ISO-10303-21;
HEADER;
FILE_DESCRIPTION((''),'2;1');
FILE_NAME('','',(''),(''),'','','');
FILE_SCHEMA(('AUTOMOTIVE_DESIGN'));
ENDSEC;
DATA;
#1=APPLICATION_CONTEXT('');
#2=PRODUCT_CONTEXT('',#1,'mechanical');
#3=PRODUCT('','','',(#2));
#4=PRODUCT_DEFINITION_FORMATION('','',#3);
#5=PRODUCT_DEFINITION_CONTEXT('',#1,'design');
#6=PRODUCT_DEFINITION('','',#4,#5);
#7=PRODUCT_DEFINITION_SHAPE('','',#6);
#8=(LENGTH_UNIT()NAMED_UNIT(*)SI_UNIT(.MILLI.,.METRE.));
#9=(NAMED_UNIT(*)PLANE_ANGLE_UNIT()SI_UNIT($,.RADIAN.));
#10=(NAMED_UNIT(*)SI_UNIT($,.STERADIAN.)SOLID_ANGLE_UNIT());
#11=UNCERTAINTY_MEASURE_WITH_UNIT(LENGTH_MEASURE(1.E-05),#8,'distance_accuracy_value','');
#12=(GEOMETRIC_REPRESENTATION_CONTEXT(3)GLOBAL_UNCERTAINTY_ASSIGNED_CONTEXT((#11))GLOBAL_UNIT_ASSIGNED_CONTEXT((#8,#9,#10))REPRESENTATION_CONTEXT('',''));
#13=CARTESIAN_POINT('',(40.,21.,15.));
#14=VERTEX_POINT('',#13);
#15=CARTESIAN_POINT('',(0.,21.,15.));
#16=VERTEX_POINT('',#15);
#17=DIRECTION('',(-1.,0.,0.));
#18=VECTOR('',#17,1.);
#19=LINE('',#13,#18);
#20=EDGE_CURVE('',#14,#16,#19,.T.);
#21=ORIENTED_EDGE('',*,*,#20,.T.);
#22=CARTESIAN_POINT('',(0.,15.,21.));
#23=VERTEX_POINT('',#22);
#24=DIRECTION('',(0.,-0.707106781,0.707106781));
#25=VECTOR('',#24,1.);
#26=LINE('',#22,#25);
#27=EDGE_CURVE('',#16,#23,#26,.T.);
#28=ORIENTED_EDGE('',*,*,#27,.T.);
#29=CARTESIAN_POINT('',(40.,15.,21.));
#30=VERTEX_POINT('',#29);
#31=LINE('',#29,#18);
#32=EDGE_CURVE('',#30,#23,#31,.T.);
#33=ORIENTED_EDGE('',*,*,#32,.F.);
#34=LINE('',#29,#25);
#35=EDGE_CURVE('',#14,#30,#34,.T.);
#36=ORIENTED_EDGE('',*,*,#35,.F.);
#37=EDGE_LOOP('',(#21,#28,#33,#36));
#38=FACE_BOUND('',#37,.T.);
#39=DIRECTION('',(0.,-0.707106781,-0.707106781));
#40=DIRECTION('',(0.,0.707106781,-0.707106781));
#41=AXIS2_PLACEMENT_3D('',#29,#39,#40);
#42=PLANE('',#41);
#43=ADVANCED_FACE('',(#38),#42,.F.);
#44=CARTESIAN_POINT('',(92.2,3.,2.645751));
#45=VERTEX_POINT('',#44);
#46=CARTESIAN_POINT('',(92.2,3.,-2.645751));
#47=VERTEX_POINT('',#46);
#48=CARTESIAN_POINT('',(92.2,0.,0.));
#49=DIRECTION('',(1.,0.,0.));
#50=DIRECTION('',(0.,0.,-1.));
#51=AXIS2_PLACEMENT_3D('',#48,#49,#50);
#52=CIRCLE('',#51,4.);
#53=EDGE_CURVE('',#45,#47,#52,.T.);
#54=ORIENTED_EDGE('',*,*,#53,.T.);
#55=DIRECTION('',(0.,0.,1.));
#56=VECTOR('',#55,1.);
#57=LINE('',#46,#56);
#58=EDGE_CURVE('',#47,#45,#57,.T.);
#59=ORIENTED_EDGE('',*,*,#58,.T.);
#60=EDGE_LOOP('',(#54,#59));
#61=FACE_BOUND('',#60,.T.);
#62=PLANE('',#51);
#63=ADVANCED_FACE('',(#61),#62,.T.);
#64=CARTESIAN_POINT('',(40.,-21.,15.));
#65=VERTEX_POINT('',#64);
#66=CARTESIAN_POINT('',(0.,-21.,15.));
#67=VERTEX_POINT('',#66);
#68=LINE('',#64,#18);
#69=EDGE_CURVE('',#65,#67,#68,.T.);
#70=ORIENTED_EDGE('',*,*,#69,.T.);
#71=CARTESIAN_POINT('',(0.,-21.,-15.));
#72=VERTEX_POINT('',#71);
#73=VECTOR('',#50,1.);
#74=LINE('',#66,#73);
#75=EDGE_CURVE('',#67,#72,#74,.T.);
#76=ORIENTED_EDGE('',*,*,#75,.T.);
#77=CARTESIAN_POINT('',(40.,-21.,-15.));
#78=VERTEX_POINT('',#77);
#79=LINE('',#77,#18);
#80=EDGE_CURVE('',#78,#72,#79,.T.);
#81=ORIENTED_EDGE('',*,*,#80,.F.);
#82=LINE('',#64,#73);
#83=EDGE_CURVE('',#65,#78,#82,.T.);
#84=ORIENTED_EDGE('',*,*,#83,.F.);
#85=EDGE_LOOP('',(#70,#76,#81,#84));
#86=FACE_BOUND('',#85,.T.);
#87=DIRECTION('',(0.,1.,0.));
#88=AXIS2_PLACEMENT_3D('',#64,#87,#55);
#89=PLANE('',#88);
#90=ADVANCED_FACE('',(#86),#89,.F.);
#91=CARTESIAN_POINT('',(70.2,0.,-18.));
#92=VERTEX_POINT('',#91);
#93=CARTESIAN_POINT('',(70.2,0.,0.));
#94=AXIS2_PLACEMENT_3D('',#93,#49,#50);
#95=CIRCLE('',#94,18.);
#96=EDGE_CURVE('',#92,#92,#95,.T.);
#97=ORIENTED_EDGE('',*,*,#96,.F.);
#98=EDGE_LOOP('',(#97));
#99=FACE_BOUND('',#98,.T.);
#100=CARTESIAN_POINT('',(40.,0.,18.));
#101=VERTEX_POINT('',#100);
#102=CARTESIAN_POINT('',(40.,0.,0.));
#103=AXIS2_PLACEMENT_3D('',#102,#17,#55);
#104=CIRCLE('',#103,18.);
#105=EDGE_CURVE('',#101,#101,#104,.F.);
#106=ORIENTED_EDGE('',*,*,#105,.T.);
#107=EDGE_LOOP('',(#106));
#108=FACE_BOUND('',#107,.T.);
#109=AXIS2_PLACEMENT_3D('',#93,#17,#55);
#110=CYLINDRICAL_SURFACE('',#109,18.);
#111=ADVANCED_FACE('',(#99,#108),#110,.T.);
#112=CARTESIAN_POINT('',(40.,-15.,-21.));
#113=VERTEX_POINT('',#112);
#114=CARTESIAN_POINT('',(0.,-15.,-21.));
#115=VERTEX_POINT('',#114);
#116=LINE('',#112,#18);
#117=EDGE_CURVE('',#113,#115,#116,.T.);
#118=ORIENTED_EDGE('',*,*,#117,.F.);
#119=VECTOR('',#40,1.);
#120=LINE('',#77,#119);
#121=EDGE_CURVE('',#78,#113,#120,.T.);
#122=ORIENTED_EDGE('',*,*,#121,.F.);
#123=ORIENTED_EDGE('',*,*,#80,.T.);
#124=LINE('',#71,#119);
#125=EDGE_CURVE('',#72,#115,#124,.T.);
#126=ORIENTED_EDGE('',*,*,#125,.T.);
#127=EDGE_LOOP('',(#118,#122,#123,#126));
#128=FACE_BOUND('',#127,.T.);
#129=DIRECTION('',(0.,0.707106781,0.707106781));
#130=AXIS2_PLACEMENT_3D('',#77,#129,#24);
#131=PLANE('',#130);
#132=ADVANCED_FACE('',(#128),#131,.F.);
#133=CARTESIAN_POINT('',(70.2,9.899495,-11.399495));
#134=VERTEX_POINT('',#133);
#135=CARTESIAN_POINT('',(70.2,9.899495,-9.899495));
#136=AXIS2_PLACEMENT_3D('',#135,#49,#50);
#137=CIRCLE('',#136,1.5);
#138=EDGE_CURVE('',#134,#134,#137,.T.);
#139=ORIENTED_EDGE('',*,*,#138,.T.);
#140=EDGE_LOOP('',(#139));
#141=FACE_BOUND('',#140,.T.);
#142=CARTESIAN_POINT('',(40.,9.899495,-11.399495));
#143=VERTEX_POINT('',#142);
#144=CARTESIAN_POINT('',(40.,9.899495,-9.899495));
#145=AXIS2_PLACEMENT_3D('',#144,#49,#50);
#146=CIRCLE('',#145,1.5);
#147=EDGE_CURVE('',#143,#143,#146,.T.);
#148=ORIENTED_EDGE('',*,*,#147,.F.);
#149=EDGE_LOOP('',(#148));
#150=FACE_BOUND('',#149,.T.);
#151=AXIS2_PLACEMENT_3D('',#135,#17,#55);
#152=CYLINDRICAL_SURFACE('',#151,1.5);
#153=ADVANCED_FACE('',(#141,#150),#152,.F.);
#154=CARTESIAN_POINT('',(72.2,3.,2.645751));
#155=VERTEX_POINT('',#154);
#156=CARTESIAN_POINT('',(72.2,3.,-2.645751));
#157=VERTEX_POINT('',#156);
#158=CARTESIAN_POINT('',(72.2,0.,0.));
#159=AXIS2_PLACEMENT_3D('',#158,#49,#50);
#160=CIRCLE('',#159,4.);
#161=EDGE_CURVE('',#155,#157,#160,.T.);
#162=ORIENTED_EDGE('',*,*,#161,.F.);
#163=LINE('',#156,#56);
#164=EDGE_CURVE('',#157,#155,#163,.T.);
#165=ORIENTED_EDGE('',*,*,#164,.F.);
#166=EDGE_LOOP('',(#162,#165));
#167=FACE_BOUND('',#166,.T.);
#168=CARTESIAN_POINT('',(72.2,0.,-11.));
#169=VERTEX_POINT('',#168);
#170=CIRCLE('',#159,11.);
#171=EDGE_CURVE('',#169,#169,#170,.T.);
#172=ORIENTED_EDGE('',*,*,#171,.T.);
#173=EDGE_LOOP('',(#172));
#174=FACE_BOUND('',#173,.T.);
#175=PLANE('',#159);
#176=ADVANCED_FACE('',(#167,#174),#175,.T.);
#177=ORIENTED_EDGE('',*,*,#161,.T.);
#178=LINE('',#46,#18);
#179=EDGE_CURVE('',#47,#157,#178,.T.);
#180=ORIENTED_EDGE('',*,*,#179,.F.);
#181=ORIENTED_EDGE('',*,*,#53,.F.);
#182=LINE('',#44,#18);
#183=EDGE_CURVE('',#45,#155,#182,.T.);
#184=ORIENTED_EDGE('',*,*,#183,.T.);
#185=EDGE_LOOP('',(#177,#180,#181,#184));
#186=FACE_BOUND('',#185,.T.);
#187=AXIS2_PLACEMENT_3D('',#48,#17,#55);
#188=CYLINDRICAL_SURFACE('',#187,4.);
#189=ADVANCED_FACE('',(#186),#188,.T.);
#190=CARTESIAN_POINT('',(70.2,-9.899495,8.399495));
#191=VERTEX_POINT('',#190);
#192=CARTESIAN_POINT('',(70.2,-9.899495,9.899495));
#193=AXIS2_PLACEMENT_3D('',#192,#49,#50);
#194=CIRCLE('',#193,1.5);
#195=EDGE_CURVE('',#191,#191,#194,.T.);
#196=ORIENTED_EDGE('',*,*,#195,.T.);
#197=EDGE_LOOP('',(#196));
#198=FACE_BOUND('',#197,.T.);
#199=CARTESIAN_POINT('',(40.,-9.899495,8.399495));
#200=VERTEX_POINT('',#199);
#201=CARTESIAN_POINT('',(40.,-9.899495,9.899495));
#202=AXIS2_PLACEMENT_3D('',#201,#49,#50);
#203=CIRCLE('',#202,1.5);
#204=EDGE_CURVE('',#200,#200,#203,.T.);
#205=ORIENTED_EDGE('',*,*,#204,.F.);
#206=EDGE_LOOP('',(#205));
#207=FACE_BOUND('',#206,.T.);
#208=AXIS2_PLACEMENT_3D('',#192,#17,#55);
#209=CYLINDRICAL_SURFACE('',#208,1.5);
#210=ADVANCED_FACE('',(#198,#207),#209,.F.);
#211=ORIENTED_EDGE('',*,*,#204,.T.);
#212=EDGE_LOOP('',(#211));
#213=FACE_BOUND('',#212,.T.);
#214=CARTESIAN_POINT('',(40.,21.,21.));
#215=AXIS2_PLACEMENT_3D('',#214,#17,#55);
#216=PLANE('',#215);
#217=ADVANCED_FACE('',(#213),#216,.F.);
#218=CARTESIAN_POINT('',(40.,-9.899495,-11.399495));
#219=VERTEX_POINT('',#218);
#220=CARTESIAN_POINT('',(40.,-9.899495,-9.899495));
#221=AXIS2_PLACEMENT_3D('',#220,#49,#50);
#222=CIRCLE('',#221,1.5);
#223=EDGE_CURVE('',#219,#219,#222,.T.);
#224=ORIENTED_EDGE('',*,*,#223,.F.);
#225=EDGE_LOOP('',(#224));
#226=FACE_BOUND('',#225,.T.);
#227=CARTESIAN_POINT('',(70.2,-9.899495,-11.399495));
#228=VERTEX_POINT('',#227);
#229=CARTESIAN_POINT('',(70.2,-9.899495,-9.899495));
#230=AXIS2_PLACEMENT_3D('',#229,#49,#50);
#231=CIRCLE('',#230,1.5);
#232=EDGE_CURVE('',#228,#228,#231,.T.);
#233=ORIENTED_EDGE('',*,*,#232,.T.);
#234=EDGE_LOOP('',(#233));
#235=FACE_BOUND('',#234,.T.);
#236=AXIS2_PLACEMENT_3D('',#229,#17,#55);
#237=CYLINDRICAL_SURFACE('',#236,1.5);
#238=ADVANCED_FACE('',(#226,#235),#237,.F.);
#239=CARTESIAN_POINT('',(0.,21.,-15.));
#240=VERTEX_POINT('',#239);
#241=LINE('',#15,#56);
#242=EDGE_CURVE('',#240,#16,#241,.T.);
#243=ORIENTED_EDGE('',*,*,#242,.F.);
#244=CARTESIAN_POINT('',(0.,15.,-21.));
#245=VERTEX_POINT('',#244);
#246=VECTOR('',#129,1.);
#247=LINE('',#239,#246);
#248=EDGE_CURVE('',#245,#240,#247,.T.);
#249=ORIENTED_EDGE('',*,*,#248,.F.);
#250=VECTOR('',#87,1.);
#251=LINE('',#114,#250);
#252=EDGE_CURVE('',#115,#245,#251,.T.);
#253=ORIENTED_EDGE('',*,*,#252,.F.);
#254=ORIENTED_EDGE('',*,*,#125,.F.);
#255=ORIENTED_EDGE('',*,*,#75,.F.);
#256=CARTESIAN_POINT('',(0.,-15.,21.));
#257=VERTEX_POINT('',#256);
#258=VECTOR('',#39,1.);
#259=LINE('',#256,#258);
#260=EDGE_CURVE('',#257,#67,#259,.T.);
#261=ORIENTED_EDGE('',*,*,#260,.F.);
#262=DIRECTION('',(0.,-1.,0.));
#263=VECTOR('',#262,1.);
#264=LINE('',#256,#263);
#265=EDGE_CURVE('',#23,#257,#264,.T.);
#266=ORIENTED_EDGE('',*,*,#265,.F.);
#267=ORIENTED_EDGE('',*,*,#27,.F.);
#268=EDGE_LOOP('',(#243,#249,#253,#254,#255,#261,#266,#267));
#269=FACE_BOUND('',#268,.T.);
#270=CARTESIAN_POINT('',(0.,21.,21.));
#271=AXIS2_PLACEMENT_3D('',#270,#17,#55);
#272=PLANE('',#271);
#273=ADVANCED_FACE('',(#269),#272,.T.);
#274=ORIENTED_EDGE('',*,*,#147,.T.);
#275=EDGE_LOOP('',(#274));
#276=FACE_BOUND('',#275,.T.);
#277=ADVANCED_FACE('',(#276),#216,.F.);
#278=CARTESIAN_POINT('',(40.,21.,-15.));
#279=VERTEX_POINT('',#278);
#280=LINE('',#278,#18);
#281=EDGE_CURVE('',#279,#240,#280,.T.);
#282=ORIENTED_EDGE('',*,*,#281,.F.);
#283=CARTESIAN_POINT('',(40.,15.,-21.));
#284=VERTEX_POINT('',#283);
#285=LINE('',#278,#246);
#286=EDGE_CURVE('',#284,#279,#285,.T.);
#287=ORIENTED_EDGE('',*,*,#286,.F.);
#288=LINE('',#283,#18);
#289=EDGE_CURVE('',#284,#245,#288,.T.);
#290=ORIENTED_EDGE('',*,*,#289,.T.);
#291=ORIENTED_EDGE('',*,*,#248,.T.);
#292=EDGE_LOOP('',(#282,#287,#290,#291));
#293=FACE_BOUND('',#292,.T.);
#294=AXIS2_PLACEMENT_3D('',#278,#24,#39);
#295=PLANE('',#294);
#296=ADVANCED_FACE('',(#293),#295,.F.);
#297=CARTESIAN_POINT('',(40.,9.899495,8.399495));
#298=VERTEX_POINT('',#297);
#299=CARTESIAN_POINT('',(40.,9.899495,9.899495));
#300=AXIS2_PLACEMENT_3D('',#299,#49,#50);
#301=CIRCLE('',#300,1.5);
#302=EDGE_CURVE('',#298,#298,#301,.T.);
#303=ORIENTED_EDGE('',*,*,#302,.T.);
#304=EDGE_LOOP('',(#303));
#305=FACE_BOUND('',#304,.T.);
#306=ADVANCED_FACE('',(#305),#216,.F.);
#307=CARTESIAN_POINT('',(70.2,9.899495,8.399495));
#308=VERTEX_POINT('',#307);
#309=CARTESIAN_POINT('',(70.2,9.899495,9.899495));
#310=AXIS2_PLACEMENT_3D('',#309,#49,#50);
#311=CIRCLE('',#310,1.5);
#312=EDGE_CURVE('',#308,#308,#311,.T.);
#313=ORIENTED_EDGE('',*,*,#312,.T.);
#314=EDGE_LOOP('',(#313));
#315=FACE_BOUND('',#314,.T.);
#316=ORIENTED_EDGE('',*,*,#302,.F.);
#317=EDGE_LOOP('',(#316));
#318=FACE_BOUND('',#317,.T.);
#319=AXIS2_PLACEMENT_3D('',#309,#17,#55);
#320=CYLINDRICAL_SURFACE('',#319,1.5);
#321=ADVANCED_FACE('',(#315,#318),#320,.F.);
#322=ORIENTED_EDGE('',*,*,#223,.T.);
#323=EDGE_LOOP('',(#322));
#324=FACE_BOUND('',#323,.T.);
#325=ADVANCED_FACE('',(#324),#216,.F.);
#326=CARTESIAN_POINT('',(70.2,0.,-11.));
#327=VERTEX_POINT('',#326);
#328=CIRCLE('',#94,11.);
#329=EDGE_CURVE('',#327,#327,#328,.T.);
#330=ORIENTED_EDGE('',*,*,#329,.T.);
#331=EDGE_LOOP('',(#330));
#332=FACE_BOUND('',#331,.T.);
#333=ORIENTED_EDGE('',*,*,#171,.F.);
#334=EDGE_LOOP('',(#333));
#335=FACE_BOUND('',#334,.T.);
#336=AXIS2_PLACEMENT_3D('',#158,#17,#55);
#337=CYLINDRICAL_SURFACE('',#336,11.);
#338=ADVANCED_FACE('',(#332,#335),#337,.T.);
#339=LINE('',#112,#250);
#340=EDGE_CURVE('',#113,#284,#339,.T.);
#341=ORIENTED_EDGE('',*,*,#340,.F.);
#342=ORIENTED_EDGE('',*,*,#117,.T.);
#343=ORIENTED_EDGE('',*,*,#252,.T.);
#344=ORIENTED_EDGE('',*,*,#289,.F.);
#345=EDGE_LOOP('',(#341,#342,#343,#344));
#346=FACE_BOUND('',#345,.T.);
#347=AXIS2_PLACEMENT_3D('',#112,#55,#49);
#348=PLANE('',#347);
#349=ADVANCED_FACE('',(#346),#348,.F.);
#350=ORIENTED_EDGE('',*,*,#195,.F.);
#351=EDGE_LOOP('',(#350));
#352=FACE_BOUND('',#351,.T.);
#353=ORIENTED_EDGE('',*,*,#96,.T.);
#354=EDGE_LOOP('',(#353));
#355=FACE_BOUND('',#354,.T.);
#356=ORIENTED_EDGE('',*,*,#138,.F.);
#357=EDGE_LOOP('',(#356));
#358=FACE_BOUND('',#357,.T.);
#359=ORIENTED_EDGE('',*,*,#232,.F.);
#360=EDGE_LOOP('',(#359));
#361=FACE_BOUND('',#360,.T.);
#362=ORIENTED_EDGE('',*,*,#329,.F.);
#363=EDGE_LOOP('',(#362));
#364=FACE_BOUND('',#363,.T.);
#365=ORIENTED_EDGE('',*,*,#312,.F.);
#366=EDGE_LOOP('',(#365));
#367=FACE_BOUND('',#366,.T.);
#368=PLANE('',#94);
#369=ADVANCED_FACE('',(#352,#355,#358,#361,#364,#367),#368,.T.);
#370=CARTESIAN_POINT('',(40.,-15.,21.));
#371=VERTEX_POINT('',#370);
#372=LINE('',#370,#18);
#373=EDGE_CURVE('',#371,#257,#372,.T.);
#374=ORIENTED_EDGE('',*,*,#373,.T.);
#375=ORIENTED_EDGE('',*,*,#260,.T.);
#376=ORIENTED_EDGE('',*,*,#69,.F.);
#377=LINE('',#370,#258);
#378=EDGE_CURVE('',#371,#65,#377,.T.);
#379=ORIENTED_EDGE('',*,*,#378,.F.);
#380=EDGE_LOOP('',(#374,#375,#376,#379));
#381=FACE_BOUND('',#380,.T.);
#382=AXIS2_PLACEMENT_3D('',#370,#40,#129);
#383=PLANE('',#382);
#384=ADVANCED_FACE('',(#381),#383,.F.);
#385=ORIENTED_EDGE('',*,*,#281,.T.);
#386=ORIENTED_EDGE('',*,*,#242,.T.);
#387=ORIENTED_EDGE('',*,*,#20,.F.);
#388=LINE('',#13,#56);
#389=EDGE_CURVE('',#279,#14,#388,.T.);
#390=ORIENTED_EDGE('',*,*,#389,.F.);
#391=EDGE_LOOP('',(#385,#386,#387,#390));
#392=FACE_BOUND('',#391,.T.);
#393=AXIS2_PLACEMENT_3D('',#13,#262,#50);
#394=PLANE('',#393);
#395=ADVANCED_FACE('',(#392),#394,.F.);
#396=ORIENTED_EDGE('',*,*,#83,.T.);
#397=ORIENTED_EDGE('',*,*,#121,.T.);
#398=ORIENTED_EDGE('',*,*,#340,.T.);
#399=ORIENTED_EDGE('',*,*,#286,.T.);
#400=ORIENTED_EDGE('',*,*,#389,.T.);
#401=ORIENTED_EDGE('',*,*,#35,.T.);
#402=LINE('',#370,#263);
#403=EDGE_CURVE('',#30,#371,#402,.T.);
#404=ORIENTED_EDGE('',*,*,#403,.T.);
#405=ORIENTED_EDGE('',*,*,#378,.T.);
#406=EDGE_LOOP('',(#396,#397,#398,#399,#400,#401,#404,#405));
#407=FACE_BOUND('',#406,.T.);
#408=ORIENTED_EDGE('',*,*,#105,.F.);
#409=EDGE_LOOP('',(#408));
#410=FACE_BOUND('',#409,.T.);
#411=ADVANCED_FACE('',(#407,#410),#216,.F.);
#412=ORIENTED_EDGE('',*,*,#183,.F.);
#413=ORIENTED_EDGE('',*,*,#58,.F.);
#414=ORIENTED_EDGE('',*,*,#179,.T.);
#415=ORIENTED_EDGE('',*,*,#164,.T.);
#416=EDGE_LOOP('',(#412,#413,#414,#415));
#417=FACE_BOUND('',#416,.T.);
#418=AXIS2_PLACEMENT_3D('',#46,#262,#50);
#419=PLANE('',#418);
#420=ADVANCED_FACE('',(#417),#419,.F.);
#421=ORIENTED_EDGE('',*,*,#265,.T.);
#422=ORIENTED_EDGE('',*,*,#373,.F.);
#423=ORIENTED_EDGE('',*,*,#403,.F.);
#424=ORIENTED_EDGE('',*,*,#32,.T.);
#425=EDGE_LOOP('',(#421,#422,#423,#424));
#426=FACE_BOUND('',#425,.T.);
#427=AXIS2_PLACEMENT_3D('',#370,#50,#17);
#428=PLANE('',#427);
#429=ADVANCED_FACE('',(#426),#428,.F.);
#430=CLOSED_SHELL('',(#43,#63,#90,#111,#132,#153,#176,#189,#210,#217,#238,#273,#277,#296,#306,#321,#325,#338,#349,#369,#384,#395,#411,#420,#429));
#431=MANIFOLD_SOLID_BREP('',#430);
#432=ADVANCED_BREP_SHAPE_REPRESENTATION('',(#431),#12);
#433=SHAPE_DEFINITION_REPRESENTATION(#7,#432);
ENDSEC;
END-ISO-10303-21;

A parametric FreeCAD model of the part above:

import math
import FreeCAD as App
import Part
import Sketcher

doc = App.newDocument("Part")
body = doc.addObject("PartDesign::Body", "Body")

# Sketch on YZ plane
sketch1 = body.newObject("Sketcher::SketchObject", "Sketch")
sketch1.AttachmentSupport = (doc.getObject("YZ_Plane"), [""])
sketch1.MapMode = "FlatFace"
sketch1.addGeometry([
    Part.LineSegment(App.Vector(21, 15, 0), App.Vector(15, 21, 0)),  # 0
    Part.LineSegment(App.Vector(15, 21, 0), App.Vector(-15, 21, 0)),  # 1
    Part.LineSegment(App.Vector(-15, 21, 0), App.Vector(-21, 15, 0)),  # 2
    Part.LineSegment(App.Vector(-21, 15, 0), App.Vector(-21, -15, 0)),  # 3
    Part.LineSegment(App.Vector(-21, -15, 0), App.Vector(-15, -21, 0)),  # 4
    Part.LineSegment(App.Vector(-15, -21, 0), App.Vector(15, -21, 0)),  # 5
    Part.LineSegment(App.Vector(15, -21, 0), App.Vector(21, -15, 0)),  # 6
    Part.LineSegment(App.Vector(21, -15, 0), App.Vector(21, 15, 0)),  # 7
], False)
sketch1.addConstraint([
    Sketcher.Constraint("Coincident", 0, 2, 1, 1),
    Sketcher.Constraint("Coincident", 1, 2, 2, 1),
    Sketcher.Constraint("Coincident", 2, 2, 3, 1),
    Sketcher.Constraint("Coincident", 3, 2, 4, 1),
    Sketcher.Constraint("Coincident", 4, 2, 5, 1),
    Sketcher.Constraint("Coincident", 5, 2, 6, 1),
    Sketcher.Constraint("Coincident", 6, 2, 7, 1),
    Sketcher.Constraint("Coincident", 7, 2, 0, 1),
    Sketcher.Constraint("Horizontal", 1),
    Sketcher.Constraint("Vertical", 3),
    Sketcher.Constraint("Horizontal", 5),
    Sketcher.Constraint("Vertical", 7),
    Sketcher.Constraint("Symmetric", 0, 2, 4, 2, -1, 1),
    Sketcher.Constraint("Symmetric", 2, 2, 6, 2, -1, 1),
    Sketcher.Constraint("Perpendicular", 0, 2),
    Sketcher.Constraint("Perpendicular", 2, 4),
    Sketcher.Constraint("Perpendicular", 4, 6),
    Sketcher.Constraint("Horizontal", 3, 2, 6, 2),
    Sketcher.Constraint("Vertical", 1, 2, 4, 2),
    Sketcher.Constraint("Equal", 5, 3),
    Sketcher.Constraint("DistanceX", 1, 2, 1, 1, 30.0),
    Sketcher.Constraint("DistanceY", -1, 1, 0, 2, 21.0),
])
pad1 = body.newObject("PartDesign::Pad", "Pad")
pad1.Profile = sketch1
pad1.Length = 40

# Sketch on YZ plane
sketch2 = body.newObject("Sketcher::SketchObject", "Sketch001")
sketch2.AttachmentSupport = (doc.getObject("YZ_Plane"), [""])
sketch2.MapMode = "FlatFace"
sketch2.AttachmentOffset = App.Placement(App.Vector(0, 0, 40), App.Rotation())
sketch2.addGeometry([
    Part.Circle(App.Vector(0, 0, 0), App.Vector(0, 0, 1), 18),  # 0
    Part.Circle(App.Vector(-9.9, 9.9, 0), App.Vector(0, 0, 1), 1.5),  # 1
    Part.Circle(App.Vector(-9.9, -9.9, 0), App.Vector(0, 0, 1), 1.5),  # 2
    Part.Circle(App.Vector(9.9, 9.9, 0), App.Vector(0, 0, 1), 1.5),  # 3
    Part.Circle(App.Vector(9.9, -9.9, 0), App.Vector(0, 0, 1), 1.5),  # 4
], False)
sketch2.addConstraint([
    Sketcher.Constraint("Coincident", 0, 3, -1, 1),
    Sketcher.Constraint("Equal", 1, 2),
    Sketcher.Constraint("Equal", 2, 3),
    Sketcher.Constraint("Equal", 3, 4),
    Sketcher.Constraint("Symmetric", 2, 3, 3, 3, -1, 1),
    Sketcher.Constraint("Symmetric", 1, 3, 4, 3, -1, 1),
    Sketcher.Constraint("Symmetric", 1, 3, 3, 3, -2),
    Sketcher.Constraint("Diameter", 0, 36.0),
    Sketcher.Constraint("Diameter", 1, 3.0),
    Sketcher.Constraint("DistanceY", 2, 3, 1, 3, 19.79899),
    Sketcher.Constraint("DistanceX", 1, 3, 3, 3, 19.79899),
])
pad2 = body.newObject("PartDesign::Pad", "Pad001")
pad2.Profile = sketch2
pad2.Length = 30.2

# Sketch on YZ plane
sketch3 = body.newObject("Sketcher::SketchObject", "Sketch002")
sketch3.AttachmentSupport = (doc.getObject("YZ_Plane"), [""])
sketch3.MapMode = "FlatFace"
sketch3.AttachmentOffset = App.Placement(App.Vector(0, 0, 70.2), App.Rotation())
sketch3.addGeometry(Part.Circle(App.Vector(0, 0, 0), App.Vector(0, 0, 1), 11), False)
sketch3.addConstraint([
    Sketcher.Constraint("Coincident", 0, 3, -1, 1),
    Sketcher.Constraint("Diameter", 0, 22.0),
])
pad3 = body.newObject("PartDesign::Pad", "Pad002")
pad3.Profile = sketch3
pad3.Length = 2

# Sketch on YZ plane
sketch4 = body.newObject("Sketcher::SketchObject", "Sketch003")
sketch4.AttachmentSupport = (doc.getObject("YZ_Plane"), [""])
sketch4.MapMode = "FlatFace"
sketch4.AttachmentOffset = App.Placement(App.Vector(0, 0, 72.2), App.Rotation())
sketch4.addGeometry([
    Part.LineSegment(App.Vector(3, -2.6, 0), App.Vector(3, 2.6, 0)),
    Part.ArcOfCircle(Part.Circle(App.Vector(0, 0, 0), App.Vector(0, 0, 1), 4), math.radians(41), math.radians(319)),
], False)
sketch4.addConstraint([
    Sketcher.Constraint("Coincident", 0, 1, 1, 2),
    Sketcher.Constraint("Coincident", 1, 1, 0, 2),
    Sketcher.Constraint("Vertical", 0),
    Sketcher.Constraint("Coincident", 1, 3, -1, 1),
    Sketcher.Constraint("Radius", 1, 4.0),
    Sketcher.Constraint("DistanceX", -1, 1, 0, 1, 3.0),
])
pad4 = body.newObject("PartDesign::Pad", "Pad003")
pad4.Profile = sketch4
pad4.Length = 20

doc.recompute()
